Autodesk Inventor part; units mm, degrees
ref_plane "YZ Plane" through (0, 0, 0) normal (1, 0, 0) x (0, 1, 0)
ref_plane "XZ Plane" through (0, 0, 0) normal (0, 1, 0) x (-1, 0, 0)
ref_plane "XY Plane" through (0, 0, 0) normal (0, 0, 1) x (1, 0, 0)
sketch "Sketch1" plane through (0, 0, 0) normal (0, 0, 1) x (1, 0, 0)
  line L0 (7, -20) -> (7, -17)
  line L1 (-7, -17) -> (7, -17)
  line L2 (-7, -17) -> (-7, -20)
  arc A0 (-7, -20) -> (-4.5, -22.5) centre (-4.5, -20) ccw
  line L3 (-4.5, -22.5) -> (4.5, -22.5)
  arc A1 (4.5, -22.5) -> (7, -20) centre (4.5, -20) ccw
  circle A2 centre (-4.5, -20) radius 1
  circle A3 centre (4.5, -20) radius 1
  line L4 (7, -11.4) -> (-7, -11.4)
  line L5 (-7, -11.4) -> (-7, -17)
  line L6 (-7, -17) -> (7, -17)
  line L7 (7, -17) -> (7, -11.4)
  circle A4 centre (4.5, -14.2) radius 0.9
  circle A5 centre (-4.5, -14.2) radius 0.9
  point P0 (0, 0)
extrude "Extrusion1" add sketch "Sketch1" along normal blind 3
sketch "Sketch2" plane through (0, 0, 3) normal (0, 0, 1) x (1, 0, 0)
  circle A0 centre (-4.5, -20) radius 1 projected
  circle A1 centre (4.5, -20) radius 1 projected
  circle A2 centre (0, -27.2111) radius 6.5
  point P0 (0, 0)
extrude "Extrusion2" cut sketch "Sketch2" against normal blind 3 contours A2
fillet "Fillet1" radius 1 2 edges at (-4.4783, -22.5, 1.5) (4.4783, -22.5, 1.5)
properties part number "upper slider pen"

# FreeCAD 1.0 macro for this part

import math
import FreeCAD as App
import Part
import Sketcher

V = App.Vector
Q = App.Units.Quantity


def edges_at(feature, points):
    """Names of the edges that pass closest to the given points."""
    edges = feature.Shape.Edges
    near = lambda p: min(range(len(edges)), key=lambda i: edges[i].distToShape(Part.Vertex(*p))[0])
    return sorted({f"Edge{near(p) + 1}" for p in points})

doc = App.newDocument("Part")
body = doc.addObject("PartDesign::Body", "Body")

sketch1 = body.newObject("Sketcher::SketchObject", "Sketch")
sketch1.AttachmentSupport = (doc.getObject("XY_Plane"), [""])
sketch1.MapMode = "FlatFace"
sketch1.addGeometry([
    Part.ArcOfCircle(Part.Circle(V(4.5, -20, 0), V(0, 0, 1), 2.5), math.radians(-90), math.radians(0)),
    Part.LineSegment(V(7, -20, 0), V(7, -11.4, 0)),
    Part.LineSegment(V(7, -11.4, 0), V(-7, -11.4, 0)),
    Part.LineSegment(V(-7, -11.4, 0), V(-7, -20, 0)),
    Part.ArcOfCircle(Part.Circle(V(-4.5, -20, 0), V(0, 0, 1), 2.5), math.radians(180), math.radians(270)),
    Part.LineSegment(V(-4.5, -22.5, 0), V(4.5, -22.5, 0)),
    Part.Circle(V(-4.5, -20, 0), V(0, 0, 1), 1),
    Part.Circle(V(4.5, -20, 0), V(0, 0, 1), 1),
    Part.Circle(V(4.5, -14.2, 0), V(0, 0, 1), 0.9),
    Part.Circle(V(-4.5, -14.2, 0), V(0, 0, 1), 0.9),
], False)
sketch1.addConstraint([
    Sketcher.Constraint("Tangent", 0, 2, 1, 1),
    Sketcher.Constraint("Coincident", 1, 2, 2, 1),
    Sketcher.Constraint("Coincident", 2, 2, 3, 1),
    Sketcher.Constraint("Tangent", 3, 2, 4, 1),
    Sketcher.Constraint("Tangent", 4, 2, 5, 1),
    Sketcher.Constraint("Tangent", 5, 2, 0, 1),
    Sketcher.Constraint("Vertical", 1),
    Sketcher.Constraint("Horizontal", 2),
    Sketcher.Constraint("Vertical", 3),
    Sketcher.Constraint("Horizontal", 5),
    Sketcher.Constraint("Coincident", 6, 3, 4, 3),
    Sketcher.Constraint("Coincident", 7, 3, 0, 3),
    Sketcher.Constraint("Equal", 0, 4),
    Sketcher.Constraint("Equal", 6, 7),
    Sketcher.Constraint("Equal", 8, 9),
    Sketcher.Constraint("Symmetric", 8, 3, 9, 3, -2),
    Sketcher.Constraint("Vertical", 7, 3, 8, 3),
    Sketcher.Constraint("Vertical", 6, 3, 9, 3),
    Sketcher.Constraint("Diameter", 6, Q("2 mm")),
    Sketcher.Constraint("Diameter", 8, Q("1.8 mm")),
    Sketcher.Constraint("Radius", 0, Q("2.5 mm")),
    Sketcher.Constraint("DistanceX", 2, 2, 2, 1, Q("14 mm")),
    Sketcher.Constraint("DistanceY", 1, 1, 1, 2, Q("8.6 mm")),
    Sketcher.Constraint("DistanceY", 0, 3, -1, 1, Q("20 mm")),
    Sketcher.Constraint("DistanceY", 8, 3, -1, 1, Q("14.2 mm")),
])
pad1 = body.newObject("PartDesign::Pad", "Pad")
pad1.Profile = sketch1
pad1.Length = 3

sketch2 = body.newObject("Sketcher::SketchObject", "Sketch001")
sketch2.AttachmentSupport = (doc.getObject("XY_Plane"), [""])
sketch2.MapMode = "FlatFace"
sketch2.AttachmentOffset = App.Placement(V(0, 0, 3), App.Rotation())
sketch2.addGeometry(Part.Circle(V(0, -27, 0), V(0, 0, 1), 6), False)
sketch2.addConstraint([
    Sketcher.Constraint("PointOnObject", 0, 3, -2),
    Sketcher.Constraint("Diameter", 0, Q("13 mm")),
    Sketcher.Constraint("DistanceY", 0, 3, -1, 1, Q("27.211 mm")),
])
pocket1 = body.newObject("PartDesign::Pocket", "Pocket")
pocket1.Profile = sketch2
pocket1.Length = 3
doc.recompute()

fillet = body.newObject("PartDesign::Fillet", "Fillet")
fillet.Base = (pocket1, edges_at(pocket1, [(-4.478, -22.5, 1.5), (4.478, -22.5, 1.5)]))
fillet.Radius = 1

doc.recompute()
